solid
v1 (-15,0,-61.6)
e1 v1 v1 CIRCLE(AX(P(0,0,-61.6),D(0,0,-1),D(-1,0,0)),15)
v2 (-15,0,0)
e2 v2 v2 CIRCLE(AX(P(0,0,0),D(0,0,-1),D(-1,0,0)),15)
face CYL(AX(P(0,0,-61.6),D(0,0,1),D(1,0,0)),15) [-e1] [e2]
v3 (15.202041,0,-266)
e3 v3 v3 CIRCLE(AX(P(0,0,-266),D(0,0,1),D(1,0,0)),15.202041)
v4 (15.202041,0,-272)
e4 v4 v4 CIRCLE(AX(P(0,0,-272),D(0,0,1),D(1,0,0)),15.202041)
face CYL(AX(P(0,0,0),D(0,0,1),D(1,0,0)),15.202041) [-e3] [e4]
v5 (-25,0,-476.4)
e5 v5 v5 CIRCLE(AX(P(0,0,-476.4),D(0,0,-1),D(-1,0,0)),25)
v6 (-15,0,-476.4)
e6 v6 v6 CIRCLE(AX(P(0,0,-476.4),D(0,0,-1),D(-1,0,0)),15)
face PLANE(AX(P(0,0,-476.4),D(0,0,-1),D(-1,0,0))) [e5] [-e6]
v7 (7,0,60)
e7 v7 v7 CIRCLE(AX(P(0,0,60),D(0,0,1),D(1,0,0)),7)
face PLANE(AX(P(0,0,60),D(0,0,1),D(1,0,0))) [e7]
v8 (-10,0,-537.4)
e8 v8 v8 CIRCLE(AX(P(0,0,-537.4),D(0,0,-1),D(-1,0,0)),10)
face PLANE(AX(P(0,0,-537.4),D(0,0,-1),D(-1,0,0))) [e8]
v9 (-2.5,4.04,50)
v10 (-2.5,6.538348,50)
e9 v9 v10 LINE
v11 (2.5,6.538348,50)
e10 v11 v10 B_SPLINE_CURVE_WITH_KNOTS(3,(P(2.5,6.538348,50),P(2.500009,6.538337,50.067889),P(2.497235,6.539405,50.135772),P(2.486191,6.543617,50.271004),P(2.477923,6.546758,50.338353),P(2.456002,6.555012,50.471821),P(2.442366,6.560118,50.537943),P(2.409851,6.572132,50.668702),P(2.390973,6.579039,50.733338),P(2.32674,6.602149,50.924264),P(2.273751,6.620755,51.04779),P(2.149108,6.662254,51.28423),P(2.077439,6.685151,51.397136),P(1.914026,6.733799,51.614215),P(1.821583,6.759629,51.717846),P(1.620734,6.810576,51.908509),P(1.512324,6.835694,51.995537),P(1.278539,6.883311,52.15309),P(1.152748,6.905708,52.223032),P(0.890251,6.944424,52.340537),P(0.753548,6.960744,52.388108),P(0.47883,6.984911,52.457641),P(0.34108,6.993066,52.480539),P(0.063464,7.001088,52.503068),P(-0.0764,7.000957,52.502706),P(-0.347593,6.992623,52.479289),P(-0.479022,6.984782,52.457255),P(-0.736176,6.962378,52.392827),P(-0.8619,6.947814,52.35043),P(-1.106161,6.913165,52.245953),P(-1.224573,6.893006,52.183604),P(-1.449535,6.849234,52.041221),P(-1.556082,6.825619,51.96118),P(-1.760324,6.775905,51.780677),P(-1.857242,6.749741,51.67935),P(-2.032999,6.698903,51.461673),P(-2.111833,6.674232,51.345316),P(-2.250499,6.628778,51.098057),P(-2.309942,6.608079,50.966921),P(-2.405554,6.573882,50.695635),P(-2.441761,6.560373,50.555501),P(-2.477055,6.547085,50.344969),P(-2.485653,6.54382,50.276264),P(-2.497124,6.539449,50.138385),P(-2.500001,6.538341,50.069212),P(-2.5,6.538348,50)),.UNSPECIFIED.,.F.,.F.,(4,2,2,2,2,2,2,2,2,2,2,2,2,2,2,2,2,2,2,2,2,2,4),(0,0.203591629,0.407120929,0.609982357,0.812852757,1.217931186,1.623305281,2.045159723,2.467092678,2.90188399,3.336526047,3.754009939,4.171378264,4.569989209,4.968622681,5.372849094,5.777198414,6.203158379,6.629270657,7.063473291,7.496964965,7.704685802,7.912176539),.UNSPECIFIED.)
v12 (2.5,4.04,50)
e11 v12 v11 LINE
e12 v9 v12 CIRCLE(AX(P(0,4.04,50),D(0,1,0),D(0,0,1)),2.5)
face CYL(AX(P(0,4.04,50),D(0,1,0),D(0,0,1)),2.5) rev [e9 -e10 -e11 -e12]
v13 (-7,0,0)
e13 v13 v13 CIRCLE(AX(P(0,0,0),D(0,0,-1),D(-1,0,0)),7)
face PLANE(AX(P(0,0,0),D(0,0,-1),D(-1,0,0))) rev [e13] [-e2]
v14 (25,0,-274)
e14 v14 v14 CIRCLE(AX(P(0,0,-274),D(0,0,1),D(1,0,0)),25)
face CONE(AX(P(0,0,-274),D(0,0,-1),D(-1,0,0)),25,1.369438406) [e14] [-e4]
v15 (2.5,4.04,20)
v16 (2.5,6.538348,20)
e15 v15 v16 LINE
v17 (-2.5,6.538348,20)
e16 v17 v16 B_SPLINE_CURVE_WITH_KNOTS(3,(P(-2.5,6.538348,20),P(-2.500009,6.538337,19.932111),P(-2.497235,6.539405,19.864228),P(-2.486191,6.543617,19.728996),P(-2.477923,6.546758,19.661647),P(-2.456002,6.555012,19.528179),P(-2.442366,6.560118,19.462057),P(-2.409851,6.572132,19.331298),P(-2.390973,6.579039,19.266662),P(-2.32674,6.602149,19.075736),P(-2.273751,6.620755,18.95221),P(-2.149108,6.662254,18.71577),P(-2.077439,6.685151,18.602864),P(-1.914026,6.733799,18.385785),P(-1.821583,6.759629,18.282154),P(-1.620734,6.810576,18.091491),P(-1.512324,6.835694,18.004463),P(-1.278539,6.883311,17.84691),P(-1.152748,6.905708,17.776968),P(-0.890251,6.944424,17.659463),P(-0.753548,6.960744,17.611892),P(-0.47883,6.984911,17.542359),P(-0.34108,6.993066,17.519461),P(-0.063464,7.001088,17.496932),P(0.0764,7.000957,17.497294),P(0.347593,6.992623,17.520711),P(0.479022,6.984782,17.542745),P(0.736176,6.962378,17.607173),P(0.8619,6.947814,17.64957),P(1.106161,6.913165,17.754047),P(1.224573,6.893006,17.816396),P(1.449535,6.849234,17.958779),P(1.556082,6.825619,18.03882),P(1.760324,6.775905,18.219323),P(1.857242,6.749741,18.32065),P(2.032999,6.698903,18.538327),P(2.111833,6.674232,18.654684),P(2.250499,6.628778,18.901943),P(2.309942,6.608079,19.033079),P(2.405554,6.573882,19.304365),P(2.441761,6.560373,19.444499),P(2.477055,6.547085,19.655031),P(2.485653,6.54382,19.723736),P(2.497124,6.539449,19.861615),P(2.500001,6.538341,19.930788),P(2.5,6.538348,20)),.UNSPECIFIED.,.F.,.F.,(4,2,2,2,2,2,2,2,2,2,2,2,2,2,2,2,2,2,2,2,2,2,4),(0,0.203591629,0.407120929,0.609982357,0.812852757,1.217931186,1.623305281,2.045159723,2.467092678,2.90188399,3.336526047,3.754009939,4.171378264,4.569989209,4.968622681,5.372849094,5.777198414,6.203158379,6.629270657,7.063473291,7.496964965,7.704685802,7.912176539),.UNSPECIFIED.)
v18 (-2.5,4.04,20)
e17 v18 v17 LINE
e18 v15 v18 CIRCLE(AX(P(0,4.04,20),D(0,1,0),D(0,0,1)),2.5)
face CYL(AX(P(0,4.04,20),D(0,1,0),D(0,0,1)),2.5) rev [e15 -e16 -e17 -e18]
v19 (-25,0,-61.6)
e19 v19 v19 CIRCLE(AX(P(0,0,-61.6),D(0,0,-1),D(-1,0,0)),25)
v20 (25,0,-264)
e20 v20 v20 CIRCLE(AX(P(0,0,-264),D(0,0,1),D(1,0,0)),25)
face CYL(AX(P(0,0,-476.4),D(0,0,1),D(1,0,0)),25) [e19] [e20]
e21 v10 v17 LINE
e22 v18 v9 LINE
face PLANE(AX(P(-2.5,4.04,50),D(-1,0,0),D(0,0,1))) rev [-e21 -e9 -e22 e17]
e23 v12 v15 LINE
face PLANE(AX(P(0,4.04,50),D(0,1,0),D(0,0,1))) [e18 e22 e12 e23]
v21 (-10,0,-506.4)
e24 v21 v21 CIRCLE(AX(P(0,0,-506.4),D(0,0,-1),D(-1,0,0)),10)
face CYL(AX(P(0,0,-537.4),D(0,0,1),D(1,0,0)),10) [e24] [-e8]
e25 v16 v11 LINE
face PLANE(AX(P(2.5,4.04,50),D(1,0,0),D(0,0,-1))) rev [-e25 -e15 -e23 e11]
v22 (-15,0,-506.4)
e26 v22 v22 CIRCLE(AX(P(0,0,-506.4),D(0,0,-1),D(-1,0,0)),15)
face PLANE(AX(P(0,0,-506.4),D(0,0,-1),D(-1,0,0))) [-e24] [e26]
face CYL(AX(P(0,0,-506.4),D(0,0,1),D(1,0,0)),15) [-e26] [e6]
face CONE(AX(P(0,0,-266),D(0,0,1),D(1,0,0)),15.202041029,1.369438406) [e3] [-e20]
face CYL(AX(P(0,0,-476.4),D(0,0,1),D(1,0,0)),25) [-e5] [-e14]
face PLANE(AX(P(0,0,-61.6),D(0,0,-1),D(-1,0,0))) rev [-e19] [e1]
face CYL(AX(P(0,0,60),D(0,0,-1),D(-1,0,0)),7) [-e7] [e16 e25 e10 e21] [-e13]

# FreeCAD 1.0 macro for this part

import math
import FreeCAD as App
import Part
import Sketcher
from FreeCAD import Vector
Q = App.Units.Quantity


def add_polygon(sketch, points):
    """Adds a closed chain of lines whose ends are joined by coincident constraints."""
    first, n = sketch.GeometryCount, len(points)
    for a, b in zip(points, points[1:] + points[:1]):
        sketch.addGeometry(Part.LineSegment(App.Vector(*a, 0), App.Vector(*b, 0)), False)
    for i in range(n):
        sketch.addConstraint(Sketcher.Constraint("Coincident", first + i, 2, first + (i + 1) % n, 1))

doc = App.newDocument("Part")
params = doc.addObject("Spreadsheet::Sheet", "Params")
for row, (alias, value) in enumerate([
    ("sketch1_diameter", "14 mm"),
    ("pad1_length", "60 mm"),
    ("sketch2_diameter", "30 mm"),
    ("pad2_length", "61.6 mm"),
    ("sketch3_diameter", "50 mm"),
    ("pad3_length", "414.8 mm"),
    ("sketch4_diameter", "30 mm"),
    ("pad4_length", "30 mm"),
    ("sketch5_diameter", "20 mm"),
    ("pad5_length", "31 mm"),
    ("sketch6_radius", "2.5 mm"),
    ("sketch6_height", "30 mm"),
    ("pocket1_length", "2.96 mm"),
    ("sketch7_height", "6 mm"),
    ("sketch7_height2", "10 mm"),
    ("sketch7_length", "10 mm"),
    ("groove_angle", "360 deg"),
], start=1):
    params.set(f"A{row}", alias)
    params.set(f"B{row}", "=" + value)
    params.setAlias(f"B{row}", alias)

body = doc.addObject("PartDesign::Body", "Body")

# Sketch on XY plane
sketch1 = body.newObject("Sketcher::SketchObject", "Sketch")
sketch1.AttachmentSupport = (doc.getObject("XY_Plane"), [""])
sketch1.MapMode = "FlatFace"
sketch1.addGeometry(Part.Circle(Vector(0, 0, 0), Vector(0, 0, 1), 7), False)
sketch1.addConstraint([
    Sketcher.Constraint("Coincident", 0, 3, -1, 1),
    Sketcher.Constraint("Diameter", 0, Q("14 mm")),
])
sketch1.setExpression("Constraints[1]", "Params.sketch1_diameter")
pad1 = body.newObject("PartDesign::Pad", "Pad")
pad1.Profile = sketch1
pad1.setExpression("Length", "Params.pad1_length")

# Sketch on XY plane
sketch2 = body.newObject("Sketcher::SketchObject", "Sketch001")
sketch2.AttachmentSupport = (doc.getObject("XY_Plane"), [""])
sketch2.MapMode = "FlatFace"
sketch2.addGeometry(Part.Circle(Vector(0, 0, 0), Vector(0, 0, 1), 15), False)
sketch2.addConstraint([
    Sketcher.Constraint("Coincident", 0, 3, -1, 1),
    Sketcher.Constraint("Diameter", 0, Q("30 mm")),
])
sketch2.setExpression("Constraints[1]", "Params.sketch2_diameter")
pad2 = body.newObject("PartDesign::Pad", "Pad001")
pad2.Profile = sketch2
pad2.setExpression("Length", "Params.pad2_length")
pad2.Reversed = True

# Sketch on XY plane
sketch3 = body.newObject("Sketcher::SketchObject", "Sketch002")
sketch3.AttachmentSupport = (doc.getObject("XY_Plane"), [""])
sketch3.MapMode = "FlatFace"
sketch3.AttachmentOffset = App.Placement(Vector(0, 0, -61.6), App.Rotation())
sketch3.addGeometry(Part.Circle(Vector(0, 0, 0), Vector(0, 0, 1), 25), False)
sketch3.addConstraint([
    Sketcher.Constraint("Coincident", 0, 3, -1, 1),
    Sketcher.Constraint("Diameter", 0, Q("50 mm")),
])
sketch3.setExpression("Constraints[1]", "Params.sketch3_diameter")
pad3 = body.newObject("PartDesign::Pad", "Pad002")
pad3.Profile = sketch3
pad3.setExpression("Length", "Params.pad3_length")
pad3.Reversed = True

# Sketch on XY plane
sketch4 = body.newObject("Sketcher::SketchObject", "Sketch003")
sketch4.AttachmentSupport = (doc.getObject("XY_Plane"), [""])
sketch4.MapMode = "FlatFace"
sketch4.AttachmentOffset = App.Placement(Vector(0, 0, -476.4), App.Rotation())
sketch4.addGeometry(Part.Circle(Vector(0, 0, 0), Vector(0, 0, 1), 15), False)
sketch4.addConstraint([
    Sketcher.Constraint("Coincident", 0, 3, -1, 1),
    Sketcher.Constraint("Diameter", 0, Q("30 mm")),
])
sketch4.setExpression("Constraints[1]", "Params.sketch4_diameter")
pad4 = body.newObject("PartDesign::Pad", "Pad003")
pad4.Profile = sketch4
pad4.setExpression("Length", "Params.pad4_length")
pad4.Reversed = True

# Sketch on XY plane
sketch5 = body.newObject("Sketcher::SketchObject", "Sketch004")
sketch5.AttachmentSupport = (doc.getObject("XY_Plane"), [""])
sketch5.MapMode = "FlatFace"
sketch5.AttachmentOffset = App.Placement(Vector(0, 0, -506.4), App.Rotation())
sketch5.addGeometry(Part.Circle(Vector(0, 0, 0), Vector(0, 0, 1), 10), False)
sketch5.addConstraint([
    Sketcher.Constraint("Coincident", 0, 3, -1, 1),
    Sketcher.Constraint("Diameter", 0, Q("20 mm")),
])
sketch5.setExpression("Constraints[1]", "Params.sketch5_diameter")
pad5 = body.newObject("PartDesign::Pad", "Pad004")
pad5.Profile = sketch5
pad5.setExpression("Length", "Params.pad5_length")
pad5.Reversed = True

# Sketch on XZ plane
sketch6 = body.newObject("Sketcher::SketchObject", "Sketch005")
sketch6.AttachmentSupport = (doc.getObject("XZ_Plane"), [""])
sketch6.MapMode = "FlatFace"
sketch6.AttachmentOffset = App.Placement(Vector(0, 0, -7), App.Rotation())
sketch6.addGeometry([
    Part.LineSegment(Vector(-2.5, 20, 0), Vector(-2.5, 50, 0)),
    Part.ArcOfCircle(Part.Circle(Vector(0, 50, 0), Vector(0, 0, 1), 2.5), math.radians(0), math.radians(180)),
    Part.LineSegment(Vector(2.5, 50, 0), Vector(2.5, 20, 0)),
    Part.ArcOfCircle(Part.Circle(Vector(0, 20, 0), Vector(0, 0, 1), 2.5), math.radians(180), math.radians(360)),
], False)
sketch6.addConstraint([
    Sketcher.Constraint("Tangent", 0, 2, 1, 2),
    Sketcher.Constraint("Tangent", 1, 1, 2, 1),
    Sketcher.Constraint("Tangent", 2, 2, 3, 2),
    Sketcher.Constraint("Tangent", 3, 1, 0, 1),
    Sketcher.Constraint("Vertical", 0),
    Sketcher.Constraint("Vertical", 2),
    Sketcher.Constraint("PointOnObject", 1, 3, -2),
    Sketcher.Constraint("Radius", 1, Q("2.5 mm")),
    Sketcher.Constraint("DistanceY", 0, 1, 0, 2, Q("30 mm")),
    Sketcher.Constraint("DistanceY", -1, 1, 1, 3, Q("50 mm")),
])
sketch6.setExpression("Constraints[7]", "Params.sketch6_radius")
sketch6.setExpression("Constraints[8]", "Params.sketch6_height")
pocket1 = body.newObject("PartDesign::Pocket", "Pocket")
pocket1.Profile = sketch6
pocket1.setExpression("Length", "Params.pocket1_length")
pocket1.Reversed = True

# Sketch on YZ plane
sketch7 = body.newObject("Sketcher::SketchObject", "Sketch006")
sketch7.AttachmentSupport = (doc.getObject("YZ_Plane"), [""])
sketch7.MapMode = "FlatFace"
add_polygon(sketch7, [(25, -264), (15.202041, -266), (15.202041, -272), (25, -274)])  # lines 0-3
sketch7.addConstraint([
    Sketcher.Constraint("Vertical", 1),
    Sketcher.Constraint("Vertical", 3),
    Sketcher.Constraint("Equal", 0, 2),
    Sketcher.Constraint("DistanceY", 1, 2, 1, 1, Q("6 mm")),
    Sketcher.Constraint("DistanceY", 3, 1, 3, 2, Q("10 mm")),
    Sketcher.Constraint("Distance", 0, Q("10 mm")),
    Sketcher.Constraint("DistanceY", 0, 2, -1, 1, Q("266 mm")),
    Sketcher.Constraint("DistanceX", -1, 1, 2, 2, Q("25 mm")),
])
sketch7.setExpression("Constraints[7]", "Params.sketch7_height")
sketch7.setExpression("Constraints[8]", "Params.sketch7_height2")
sketch7.setExpression("Constraints[9]", "Params.sketch7_length")
groove = body.newObject("PartDesign::Groove", "Groove")
groove.Profile = sketch7
groove.ReferenceAxis = (sketch7, ["V_Axis"])
groove.setExpression("Angle", "Params.groove_angle")

doc.recompute()
